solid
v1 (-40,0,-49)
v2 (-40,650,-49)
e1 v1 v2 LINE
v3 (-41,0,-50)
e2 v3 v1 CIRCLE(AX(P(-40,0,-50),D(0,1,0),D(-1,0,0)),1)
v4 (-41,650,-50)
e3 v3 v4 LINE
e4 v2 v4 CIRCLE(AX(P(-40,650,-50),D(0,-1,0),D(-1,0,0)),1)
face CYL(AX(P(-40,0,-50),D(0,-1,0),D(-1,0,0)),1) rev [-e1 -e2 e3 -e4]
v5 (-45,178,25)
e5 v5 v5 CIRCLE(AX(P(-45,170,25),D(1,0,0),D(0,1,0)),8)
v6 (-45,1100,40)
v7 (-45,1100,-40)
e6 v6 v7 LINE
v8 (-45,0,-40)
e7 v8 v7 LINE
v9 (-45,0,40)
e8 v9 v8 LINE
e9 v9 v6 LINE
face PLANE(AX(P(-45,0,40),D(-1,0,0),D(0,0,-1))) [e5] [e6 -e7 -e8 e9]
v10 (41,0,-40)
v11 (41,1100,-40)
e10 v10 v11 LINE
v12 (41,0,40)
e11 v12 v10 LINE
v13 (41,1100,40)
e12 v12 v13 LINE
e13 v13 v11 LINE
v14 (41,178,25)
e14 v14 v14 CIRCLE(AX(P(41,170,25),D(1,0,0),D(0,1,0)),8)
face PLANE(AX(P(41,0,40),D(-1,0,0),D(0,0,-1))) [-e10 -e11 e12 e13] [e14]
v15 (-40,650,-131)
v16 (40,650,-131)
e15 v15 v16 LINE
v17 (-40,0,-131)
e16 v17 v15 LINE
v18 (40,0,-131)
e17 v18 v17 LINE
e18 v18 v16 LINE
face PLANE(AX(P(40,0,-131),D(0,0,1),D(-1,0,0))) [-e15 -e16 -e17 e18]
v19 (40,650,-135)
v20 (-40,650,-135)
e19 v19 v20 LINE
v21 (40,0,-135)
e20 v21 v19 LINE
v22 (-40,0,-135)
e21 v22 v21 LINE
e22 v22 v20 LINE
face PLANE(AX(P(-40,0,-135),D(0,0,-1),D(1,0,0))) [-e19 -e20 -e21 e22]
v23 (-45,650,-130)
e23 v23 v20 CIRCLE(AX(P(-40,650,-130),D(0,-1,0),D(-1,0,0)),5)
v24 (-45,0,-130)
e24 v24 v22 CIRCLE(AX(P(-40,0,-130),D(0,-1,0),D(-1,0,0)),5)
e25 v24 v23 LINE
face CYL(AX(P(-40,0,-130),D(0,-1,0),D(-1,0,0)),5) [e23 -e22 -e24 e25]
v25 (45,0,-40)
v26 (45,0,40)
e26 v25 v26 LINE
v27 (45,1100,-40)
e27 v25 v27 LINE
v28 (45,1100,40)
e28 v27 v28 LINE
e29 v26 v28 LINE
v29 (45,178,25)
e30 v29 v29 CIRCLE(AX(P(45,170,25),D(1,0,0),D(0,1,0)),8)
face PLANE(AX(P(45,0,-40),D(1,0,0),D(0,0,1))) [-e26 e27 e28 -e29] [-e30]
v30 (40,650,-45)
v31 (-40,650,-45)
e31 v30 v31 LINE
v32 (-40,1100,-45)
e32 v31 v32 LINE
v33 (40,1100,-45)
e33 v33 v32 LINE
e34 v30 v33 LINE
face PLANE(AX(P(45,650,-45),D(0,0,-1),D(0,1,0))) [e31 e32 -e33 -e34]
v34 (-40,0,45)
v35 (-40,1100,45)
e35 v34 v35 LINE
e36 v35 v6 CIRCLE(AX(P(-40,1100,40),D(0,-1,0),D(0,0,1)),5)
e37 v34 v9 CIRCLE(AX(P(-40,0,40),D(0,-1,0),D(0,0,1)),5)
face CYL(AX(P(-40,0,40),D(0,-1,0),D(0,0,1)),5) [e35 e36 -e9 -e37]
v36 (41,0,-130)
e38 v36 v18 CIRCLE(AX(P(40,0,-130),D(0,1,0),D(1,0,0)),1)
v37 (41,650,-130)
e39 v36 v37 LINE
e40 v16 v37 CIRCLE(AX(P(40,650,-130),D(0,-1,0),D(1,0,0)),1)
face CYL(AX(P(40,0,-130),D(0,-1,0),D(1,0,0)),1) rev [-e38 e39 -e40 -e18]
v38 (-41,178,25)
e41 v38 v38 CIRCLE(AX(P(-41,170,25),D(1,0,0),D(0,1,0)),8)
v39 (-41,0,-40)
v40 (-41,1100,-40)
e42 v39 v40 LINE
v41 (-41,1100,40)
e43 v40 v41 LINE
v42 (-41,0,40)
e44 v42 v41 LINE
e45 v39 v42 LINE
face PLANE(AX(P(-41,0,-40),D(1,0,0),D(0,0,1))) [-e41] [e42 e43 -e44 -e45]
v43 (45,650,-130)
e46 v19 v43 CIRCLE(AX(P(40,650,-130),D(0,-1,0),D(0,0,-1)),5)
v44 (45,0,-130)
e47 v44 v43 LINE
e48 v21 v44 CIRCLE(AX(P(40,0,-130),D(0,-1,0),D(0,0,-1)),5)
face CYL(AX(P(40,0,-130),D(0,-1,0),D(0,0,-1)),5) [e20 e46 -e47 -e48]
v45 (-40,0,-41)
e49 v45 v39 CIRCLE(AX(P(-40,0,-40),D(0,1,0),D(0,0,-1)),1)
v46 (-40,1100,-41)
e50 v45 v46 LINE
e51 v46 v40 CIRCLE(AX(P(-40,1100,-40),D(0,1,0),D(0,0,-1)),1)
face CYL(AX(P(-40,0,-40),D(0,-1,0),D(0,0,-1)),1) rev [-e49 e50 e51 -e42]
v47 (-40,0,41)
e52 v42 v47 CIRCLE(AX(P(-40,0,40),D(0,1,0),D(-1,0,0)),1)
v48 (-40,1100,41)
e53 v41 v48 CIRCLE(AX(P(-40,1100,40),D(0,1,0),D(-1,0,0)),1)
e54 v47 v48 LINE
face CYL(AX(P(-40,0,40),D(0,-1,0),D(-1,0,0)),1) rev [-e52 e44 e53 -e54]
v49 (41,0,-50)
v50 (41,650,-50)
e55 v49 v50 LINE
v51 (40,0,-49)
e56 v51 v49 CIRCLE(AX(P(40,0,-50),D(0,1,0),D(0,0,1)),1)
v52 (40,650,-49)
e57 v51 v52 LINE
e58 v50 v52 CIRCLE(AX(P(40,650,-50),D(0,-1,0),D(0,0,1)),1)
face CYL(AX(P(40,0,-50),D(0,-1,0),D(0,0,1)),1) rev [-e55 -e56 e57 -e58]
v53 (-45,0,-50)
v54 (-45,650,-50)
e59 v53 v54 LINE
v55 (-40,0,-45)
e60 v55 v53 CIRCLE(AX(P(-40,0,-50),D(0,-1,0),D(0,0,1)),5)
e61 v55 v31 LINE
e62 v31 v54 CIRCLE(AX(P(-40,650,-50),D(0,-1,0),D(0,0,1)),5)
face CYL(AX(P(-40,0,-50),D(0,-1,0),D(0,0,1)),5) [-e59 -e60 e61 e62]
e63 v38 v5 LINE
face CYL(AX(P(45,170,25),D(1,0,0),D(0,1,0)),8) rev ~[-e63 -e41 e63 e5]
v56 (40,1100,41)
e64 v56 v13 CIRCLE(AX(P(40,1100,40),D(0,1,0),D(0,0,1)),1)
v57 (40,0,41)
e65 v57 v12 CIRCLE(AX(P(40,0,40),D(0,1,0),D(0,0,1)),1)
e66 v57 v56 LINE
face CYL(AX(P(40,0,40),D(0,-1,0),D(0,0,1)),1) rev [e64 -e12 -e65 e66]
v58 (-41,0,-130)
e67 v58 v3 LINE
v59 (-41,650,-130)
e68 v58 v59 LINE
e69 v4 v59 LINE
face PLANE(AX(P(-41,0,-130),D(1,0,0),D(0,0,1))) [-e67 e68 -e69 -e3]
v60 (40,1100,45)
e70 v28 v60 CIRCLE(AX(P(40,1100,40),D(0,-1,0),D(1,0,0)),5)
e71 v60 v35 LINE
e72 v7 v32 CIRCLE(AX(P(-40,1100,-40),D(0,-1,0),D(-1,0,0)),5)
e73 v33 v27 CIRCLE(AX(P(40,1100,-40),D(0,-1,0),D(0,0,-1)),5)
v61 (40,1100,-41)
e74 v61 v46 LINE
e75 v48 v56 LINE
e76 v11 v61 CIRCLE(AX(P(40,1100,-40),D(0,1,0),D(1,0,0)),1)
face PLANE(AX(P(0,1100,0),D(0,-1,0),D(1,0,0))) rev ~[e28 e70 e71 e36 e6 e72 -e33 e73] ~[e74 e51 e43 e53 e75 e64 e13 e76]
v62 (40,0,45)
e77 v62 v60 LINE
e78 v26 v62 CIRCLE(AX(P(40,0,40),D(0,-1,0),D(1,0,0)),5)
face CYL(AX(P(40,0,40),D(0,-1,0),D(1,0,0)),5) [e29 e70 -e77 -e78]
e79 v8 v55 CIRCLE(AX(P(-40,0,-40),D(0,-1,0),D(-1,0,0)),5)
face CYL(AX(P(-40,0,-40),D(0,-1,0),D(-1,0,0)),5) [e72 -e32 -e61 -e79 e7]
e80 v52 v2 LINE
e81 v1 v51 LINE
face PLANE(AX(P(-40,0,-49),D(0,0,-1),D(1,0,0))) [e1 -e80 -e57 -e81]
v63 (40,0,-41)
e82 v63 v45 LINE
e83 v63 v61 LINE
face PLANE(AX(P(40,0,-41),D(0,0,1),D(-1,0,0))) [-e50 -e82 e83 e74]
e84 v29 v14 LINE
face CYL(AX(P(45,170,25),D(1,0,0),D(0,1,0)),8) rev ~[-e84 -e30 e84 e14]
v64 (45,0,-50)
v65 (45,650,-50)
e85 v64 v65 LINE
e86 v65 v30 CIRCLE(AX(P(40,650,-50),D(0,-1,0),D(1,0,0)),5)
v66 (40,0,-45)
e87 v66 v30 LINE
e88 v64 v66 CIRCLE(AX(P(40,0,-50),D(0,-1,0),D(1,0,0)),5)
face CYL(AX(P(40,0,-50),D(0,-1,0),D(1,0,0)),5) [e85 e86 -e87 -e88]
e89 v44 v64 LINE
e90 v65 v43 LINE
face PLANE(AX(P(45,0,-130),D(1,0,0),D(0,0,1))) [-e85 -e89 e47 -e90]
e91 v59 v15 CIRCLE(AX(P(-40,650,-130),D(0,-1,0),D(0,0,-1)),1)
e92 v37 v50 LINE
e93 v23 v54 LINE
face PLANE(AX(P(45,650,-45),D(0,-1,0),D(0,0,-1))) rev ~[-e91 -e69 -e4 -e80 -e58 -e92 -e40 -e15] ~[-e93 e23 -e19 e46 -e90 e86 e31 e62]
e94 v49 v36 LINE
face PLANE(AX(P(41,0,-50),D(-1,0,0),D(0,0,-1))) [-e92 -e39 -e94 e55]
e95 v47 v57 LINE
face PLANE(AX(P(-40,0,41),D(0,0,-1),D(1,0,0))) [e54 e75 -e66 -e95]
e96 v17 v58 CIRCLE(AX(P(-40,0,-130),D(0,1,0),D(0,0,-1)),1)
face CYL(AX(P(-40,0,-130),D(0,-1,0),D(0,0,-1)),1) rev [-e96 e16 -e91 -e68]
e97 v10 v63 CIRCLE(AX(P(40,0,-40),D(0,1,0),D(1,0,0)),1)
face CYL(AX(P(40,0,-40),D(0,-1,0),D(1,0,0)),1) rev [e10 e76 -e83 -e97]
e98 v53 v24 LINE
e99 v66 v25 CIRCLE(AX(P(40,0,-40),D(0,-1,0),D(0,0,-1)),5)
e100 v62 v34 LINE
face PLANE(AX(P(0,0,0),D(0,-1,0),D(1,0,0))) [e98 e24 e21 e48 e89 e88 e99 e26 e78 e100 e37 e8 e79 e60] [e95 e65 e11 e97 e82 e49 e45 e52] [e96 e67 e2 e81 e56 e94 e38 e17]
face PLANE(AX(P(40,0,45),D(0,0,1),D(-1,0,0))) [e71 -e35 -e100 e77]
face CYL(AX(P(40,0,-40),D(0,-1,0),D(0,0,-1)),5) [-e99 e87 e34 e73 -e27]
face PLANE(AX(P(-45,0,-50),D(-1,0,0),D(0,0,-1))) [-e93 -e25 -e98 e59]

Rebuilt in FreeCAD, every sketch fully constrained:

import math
import FreeCAD as App
import Part
import Sketcher
Q = App.Units.Quantity

doc = App.newDocument("Part")
body = doc.addObject("PartDesign::Body", "Body")

sketch1 = doc.addObject("Sketcher::SketchObject", "Sketch")
body.addObject(sketch1)
sketch1.AttachmentSupport = (doc.XZ_Plane, [""])
sketch1.MapMode = "FlatFace"
sketch1.addGeometry(Part.ArcOfCircle(Part.Circle(App.Vector(40, 40, 0), App.Vector(0, 0, 1), 5), math.radians(0), math.radians(90)), False)
sketch1.addGeometry(Part.LineSegment(App.Vector(40, 45, 0), App.Vector(-40, 45, 0)), False)
sketch1.addGeometry(Part.ArcOfCircle(Part.Circle(App.Vector(-40, 40, 0), App.Vector(0, 0, 1), 5), math.radians(90), math.radians(180)), False)
sketch1.addGeometry(Part.LineSegment(App.Vector(-45, 40, 0), App.Vector(-45, -40, 0)), False)
sketch1.addGeometry(Part.ArcOfCircle(Part.Circle(App.Vector(-40, -40, 0), App.Vector(0, 0, 1), 5), math.radians(180), math.radians(270)), False)
sketch1.addGeometry(Part.ArcOfCircle(Part.Circle(App.Vector(-40, -50, 0), App.Vector(0, 0, 1), 5), math.radians(90), math.radians(180)), False)
sketch1.addGeometry(Part.LineSegment(App.Vector(-45, -50, 0), App.Vector(-45, -130, 0)), False)
sketch1.addGeometry(Part.ArcOfCircle(Part.Circle(App.Vector(-40, -130, 0), App.Vector(0, 0, 1), 5), math.radians(180), math.radians(270)), False)
sketch1.addGeometry(Part.LineSegment(App.Vector(-40, -135, 0), App.Vector(40, -135, 0)), False)
sketch1.addGeometry(Part.ArcOfCircle(Part.Circle(App.Vector(40, -130, 0), App.Vector(0, 0, 1), 5), math.radians(-90), math.radians(0)), False)
sketch1.addGeometry(Part.LineSegment(App.Vector(45, -130, 0), App.Vector(45, -50, 0)), False)
sketch1.addGeometry(Part.ArcOfCircle(Part.Circle(App.Vector(40, -50, 0), App.Vector(0, 0, 1), 5), math.radians(0), math.radians(90)), False)
sketch1.addGeometry(Part.ArcOfCircle(Part.Circle(App.Vector(40, -40, 0), App.Vector(0, 0, 1), 5), math.radians(-90), math.radians(0)), False)
sketch1.addGeometry(Part.LineSegment(App.Vector(45, -40, 0), App.Vector(45, 40, 0)), False)
sketch1.addGeometry(Part.LineSegment(App.Vector(-41, -130, 0), App.Vector(-41, -50, 0)), False)
sketch1.addGeometry(Part.ArcOfCircle(Part.Circle(App.Vector(-40, -50, 0), App.Vector(0, 0, 1), 1), math.radians(90), math.radians(180)), False)
sketch1.addGeometry(Part.LineSegment(App.Vector(-40, -49, 0), App.Vector(40, -49, 0)), False)
sketch1.addGeometry(Part.ArcOfCircle(Part.Circle(App.Vector(40, -50, 0), App.Vector(0, 0, 1), 1), math.radians(0), math.radians(90)), False)
sketch1.addGeometry(Part.LineSegment(App.Vector(41, -50, 0), App.Vector(41, -130, 0)), False)
sketch1.addGeometry(Part.ArcOfCircle(Part.Circle(App.Vector(40, -130, 0), App.Vector(0, 0, 1), 1), math.radians(-90), math.radians(0)), False)
sketch1.addGeometry(Part.LineSegment(App.Vector(40, -131, 0), App.Vector(-40, -131, 0)), False)
sketch1.addGeometry(Part.ArcOfCircle(Part.Circle(App.Vector(-40, -130, 0), App.Vector(0, 0, 1), 1), math.radians(180), math.radians(270)), False)
sketch1.addGeometry(Part.LineSegment(App.Vector(-41, -40, 0), App.Vector(-41, 40, 0)), False)
sketch1.addGeometry(Part.ArcOfCircle(Part.Circle(App.Vector(-40, 40, 0), App.Vector(0, 0, 1), 1), math.radians(90), math.radians(180)), False)
sketch1.addGeometry(Part.LineSegment(App.Vector(-40, 41, 0), App.Vector(40, 41, 0)), False)
sketch1.addGeometry(Part.ArcOfCircle(Part.Circle(App.Vector(40, 40, 0), App.Vector(0, 0, 1), 1), math.radians(0), math.radians(90)), False)
sketch1.addGeometry(Part.LineSegment(App.Vector(41, 40, 0), App.Vector(41, -40, 0)), False)
sketch1.addGeometry(Part.ArcOfCircle(Part.Circle(App.Vector(40, -40, 0), App.Vector(0, 0, 1), 1), math.radians(-90), math.radians(0)), False)
sketch1.addGeometry(Part.LineSegment(App.Vector(40, -41, 0), App.Vector(-40, -41, 0)), False)
sketch1.addGeometry(Part.ArcOfCircle(Part.Circle(App.Vector(-40, -40, 0), App.Vector(0, 0, 1), 1), math.radians(180), math.radians(270)), False)
sketch1.addConstraint(Sketcher.Constraint("Tangent", 0, 2, 1, 1))
sketch1.addConstraint(Sketcher.Constraint("Tangent", 1, 2, 2, 1))
sketch1.addConstraint(Sketcher.Constraint("Tangent", 2, 2, 3, 1))
sketch1.addConstraint(Sketcher.Constraint("Tangent", 3, 2, 4, 1))
sketch1.addConstraint(Sketcher.Constraint("Tangent", 4, 2, 5, 1))
sketch1.addConstraint(Sketcher.Constraint("Tangent", 5, 2, 6, 1))
sketch1.addConstraint(Sketcher.Constraint("Tangent", 6, 2, 7, 1))
sketch1.addConstraint(Sketcher.Constraint("Tangent", 7, 2, 8, 1))
sketch1.addConstraint(Sketcher.Constraint("Tangent", 8, 2, 9, 1))
sketch1.addConstraint(Sketcher.Constraint("Tangent", 9, 2, 10, 1))
sketch1.addConstraint(Sketcher.Constraint("Tangent", 10, 2, 11, 1))
sketch1.addConstraint(Sketcher.Constraint("Tangent", 11, 2, 12, 1))
sketch1.addConstraint(Sketcher.Constraint("Tangent", 12, 2, 13, 1))
sketch1.addConstraint(Sketcher.Constraint("Tangent", 13, 2, 0, 1))
sketch1.addConstraint(Sketcher.Constraint("Tangent", 14, 2, 15, 2))
sketch1.addConstraint(Sketcher.Constraint("Tangent", 15, 1, 16, 1))
sketch1.addConstraint(Sketcher.Constraint("Tangent", 16, 2, 17, 2))
sketch1.addConstraint(Sketcher.Constraint("Tangent", 17, 1, 18, 1))
sketch1.addConstraint(Sketcher.Constraint("Tangent", 18, 2, 19, 2))
sketch1.addConstraint(Sketcher.Constraint("Tangent", 19, 1, 20, 1))
sketch1.addConstraint(Sketcher.Constraint("Tangent", 20, 2, 21, 2))
sketch1.addConstraint(Sketcher.Constraint("Tangent", 21, 1, 14, 1))
sketch1.addConstraint(Sketcher.Constraint("Tangent", 22, 2, 23, 2))
sketch1.addConstraint(Sketcher.Constraint("Tangent", 23, 1, 24, 1))
sketch1.addConstraint(Sketcher.Constraint("Tangent", 24, 2, 25, 2))
sketch1.addConstraint(Sketcher.Constraint("Tangent", 25, 1, 26, 1))
sketch1.addConstraint(Sketcher.Constraint("Tangent", 26, 2, 27, 2))
sketch1.addConstraint(Sketcher.Constraint("Tangent", 27, 1, 28, 1))
sketch1.addConstraint(Sketcher.Constraint("Tangent", 28, 2, 29, 2))
sketch1.addConstraint(Sketcher.Constraint("Tangent", 29, 1, 22, 1))
sketch1.addConstraint(Sketcher.Constraint("Horizontal", 1))
sketch1.addConstraint(Sketcher.Constraint("Vertical", 3))
sketch1.addConstraint(Sketcher.Constraint("Vertical", 6))
sketch1.addConstraint(Sketcher.Constraint("Horizontal", 8))
sketch1.addConstraint(Sketcher.Constraint("Vertical", 10))
sketch1.addConstraint(Sketcher.Constraint("Vertical", 13))
sketch1.addConstraint(Sketcher.Constraint("Vertical", 14))
sketch1.addConstraint(Sketcher.Constraint("Horizontal", 16))
sketch1.addConstraint(Sketcher.Constraint("Vertical", 18))
sketch1.addConstraint(Sketcher.Constraint("Horizontal", 20))
sketch1.addConstraint(Sketcher.Constraint("Vertical", 22))
sketch1.addConstraint(Sketcher.Constraint("Horizontal", 24))
sketch1.addConstraint(Sketcher.Constraint("Vertical", 26))
sketch1.addConstraint(Sketcher.Constraint("Horizontal", 28))
sketch1.addConstraint(Sketcher.Constraint("Coincident", 15, 3, 5, 3))
sketch1.addConstraint(Sketcher.Constraint("Coincident", 17, 3, 11, 3))
sketch1.addConstraint(Sketcher.Constraint("Coincident", 19, 3, 9, 3))
sketch1.addConstraint(Sketcher.Constraint("Coincident", 21, 3, 7, 3))
sketch1.addConstraint(Sketcher.Constraint("Coincident", 23, 3, 2, 3))
sketch1.addConstraint(Sketcher.Constraint("Coincident", 25, 3, 0, 3))
sketch1.addConstraint(Sketcher.Constraint("Coincident", 27, 3, 12, 3))
sketch1.addConstraint(Sketcher.Constraint("Equal", 0, 2))
sketch1.addConstraint(Sketcher.Constraint("Equal", 2, 4))
sketch1.addConstraint(Sketcher.Constraint("Equal", 4, 5))
sketch1.addConstraint(Sketcher.Constraint("Equal", 5, 7))
sketch1.addConstraint(Sketcher.Constraint("Equal", 7, 9))
sketch1.addConstraint(Sketcher.Constraint("Equal", 9, 11))
sketch1.addConstraint(Sketcher.Constraint("Equal", 11, 12))
sketch1.addConstraint(Sketcher.Constraint("Equal", 21, 23))
sketch1.addConstraint(Sketcher.Constraint("Equal", 27, 29))
sketch1.addConstraint(Sketcher.Constraint("Symmetric", 0, 3, 4, 3, -1, 1))
sketch1.addConstraint(Sketcher.Constraint("Vertical", 4, 3, 5, 3))
sketch1.addConstraint(Sketcher.Constraint("Vertical", 0, 3, 9, 3))
sketch1.addConstraint(Sketcher.Constraint("Equal", 28, 3))
sketch1.addConstraint(Sketcher.Constraint("Equal", 3, 6))
sketch1.addConstraint(Sketcher.Constraint("Radius", 0, Q("5 mm")))
sketch1.addConstraint(Sketcher.Constraint("Radius", 15, Q("1 mm")))
sketch1.addConstraint(Sketcher.Constraint("DistanceX", 1, 2, 1, 1, Q("80 mm")))
pad1 = doc.addObject("PartDesign::Pad", "Pad")
body.addObject(pad1)
pad1.Profile = sketch1
pad1.Length = 1100
pad1.Reversed = True

sketch2 = doc.addObject("Sketcher::SketchObject", "Sketch001")
body.addObject(sketch2)
sketch2.AttachmentSupport = (doc.YZ_Plane, [""])
sketch2.MapMode = "FlatFace"
sketch2.AttachmentOffset = App.Placement(App.Vector(0, 0, 45), App.Rotation())
sketch2.addGeometry(Part.Circle(App.Vector(170, 25, 0), App.Vector(0, 0, 1), 8), False)
sketch2.addConstraint(Sketcher.Constraint("Diameter", 0, Q("16 mm")))
sketch2.addConstraint(Sketcher.Constraint("DistanceX", -1, 1, 0, 3, Q("170 mm")))
sketch2.addConstraint(Sketcher.Constraint("DistanceY", -1, 1, 0, 3, Q("25 mm")))
pocket1 = doc.addObject("PartDesign::Pocket", "Pocket")
body.addObject(pocket1)
pocket1.Profile = sketch2
pocket1.Type = "ThroughAll"

sketch3 = doc.addObject("Sketcher::SketchObject", "Sketch002")
body.addObject(sketch3)
sketch3.AttachmentSupport = (doc.YZ_Plane, [""])
sketch3.MapMode = "FlatFace"
sketch3.AttachmentOffset = App.Placement(App.Vector(0, 0, 45), App.Rotation())
sketch3.addGeometry(Part.LineSegment(App.Vector(650, -135, 0), App.Vector(1100, -135, 0)), False)
sketch3.addGeometry(Part.LineSegment(App.Vector(1100, -135, 0), App.Vector(1100, -45, 0)), False)
sketch3.addGeometry(Part.LineSegment(App.Vector(1100, -45, 0), App.Vector(650, -45, 0)), False)
sketch3.addGeometry(Part.LineSegment(App.Vector(650, -45, 0), App.Vector(650, -135, 0)), False)
sketch3.addConstraint(Sketcher.Constraint("Coincident", 0, 2, 1, 1))
sketch3.addConstraint(Sketcher.Constraint("Coincident", 1, 2, 2, 1))
sketch3.addConstraint(Sketcher.Constraint("Coincident", 2, 2, 3, 1))
sketch3.addConstraint(Sketcher.Constraint("Coincident", 3, 2, 0, 1))
sketch3.addConstraint(Sketcher.Constraint("Horizontal", 0))
sketch3.addConstraint(Sketcher.Constraint("Vertical", 1))
sketch3.addConstraint(Sketcher.Constraint("Horizontal", 2))
sketch3.addConstraint(Sketcher.Constraint("Vertical", 3))
sketch3.addConstraint(Sketcher.Constraint("DistanceX", 0, 1, 0, 2, Q("450 mm")))
sketch3.addConstraint(Sketcher.Constraint("DistanceY", 1, 1, 1, 2, Q("90 mm")))
sketch3.addConstraint(Sketcher.Constraint("DistanceX", -1, 1, 0, 2, Q("1100 mm")))
sketch3.addConstraint(Sketcher.Constraint("DistanceY", 0, 2, -1, 1, Q("135 mm")))
pocket2 = doc.addObject("PartDesign::Pocket", "Pocket001")
body.addObject(pocket2)
pocket2.Profile = sketch3
pocket2.Type = "ThroughAll"

doc.recompute()
